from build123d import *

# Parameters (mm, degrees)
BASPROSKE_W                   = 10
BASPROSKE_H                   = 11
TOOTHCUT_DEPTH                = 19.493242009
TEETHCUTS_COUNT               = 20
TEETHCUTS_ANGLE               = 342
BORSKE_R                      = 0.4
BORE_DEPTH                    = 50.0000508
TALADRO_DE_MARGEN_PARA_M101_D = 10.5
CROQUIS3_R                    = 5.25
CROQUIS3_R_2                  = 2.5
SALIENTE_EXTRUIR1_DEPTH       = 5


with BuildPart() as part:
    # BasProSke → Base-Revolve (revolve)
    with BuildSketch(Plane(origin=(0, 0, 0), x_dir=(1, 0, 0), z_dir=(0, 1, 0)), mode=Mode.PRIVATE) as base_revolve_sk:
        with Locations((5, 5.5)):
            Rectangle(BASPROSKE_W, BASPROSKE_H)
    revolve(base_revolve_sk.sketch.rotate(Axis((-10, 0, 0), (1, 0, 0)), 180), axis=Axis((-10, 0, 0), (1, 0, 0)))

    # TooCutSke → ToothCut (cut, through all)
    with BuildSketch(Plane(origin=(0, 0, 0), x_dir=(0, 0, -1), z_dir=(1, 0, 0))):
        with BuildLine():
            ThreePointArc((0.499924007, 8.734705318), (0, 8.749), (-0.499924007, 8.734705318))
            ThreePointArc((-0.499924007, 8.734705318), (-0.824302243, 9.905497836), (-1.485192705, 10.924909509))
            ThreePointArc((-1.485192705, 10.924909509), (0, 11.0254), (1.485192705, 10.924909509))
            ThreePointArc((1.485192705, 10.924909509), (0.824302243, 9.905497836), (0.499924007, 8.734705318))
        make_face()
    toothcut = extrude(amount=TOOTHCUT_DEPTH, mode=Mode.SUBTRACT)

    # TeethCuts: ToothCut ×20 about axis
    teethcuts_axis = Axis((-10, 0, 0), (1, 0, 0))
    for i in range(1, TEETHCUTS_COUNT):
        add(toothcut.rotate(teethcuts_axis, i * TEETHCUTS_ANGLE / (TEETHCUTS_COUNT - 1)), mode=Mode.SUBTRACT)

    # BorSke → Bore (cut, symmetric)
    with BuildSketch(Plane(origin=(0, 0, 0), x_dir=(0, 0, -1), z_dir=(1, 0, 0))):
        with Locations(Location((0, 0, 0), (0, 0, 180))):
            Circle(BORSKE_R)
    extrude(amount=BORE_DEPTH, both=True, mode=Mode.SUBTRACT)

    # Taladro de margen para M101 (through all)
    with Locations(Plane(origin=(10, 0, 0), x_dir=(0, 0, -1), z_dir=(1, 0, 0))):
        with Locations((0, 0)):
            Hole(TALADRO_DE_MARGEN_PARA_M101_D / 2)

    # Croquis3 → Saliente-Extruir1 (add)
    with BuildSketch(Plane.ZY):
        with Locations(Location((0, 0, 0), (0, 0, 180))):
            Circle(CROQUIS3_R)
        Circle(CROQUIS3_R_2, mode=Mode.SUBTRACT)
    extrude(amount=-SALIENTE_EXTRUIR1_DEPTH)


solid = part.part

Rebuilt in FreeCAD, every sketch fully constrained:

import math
import FreeCAD as App
import Part
import Sketcher
from FreeCAD import Vector
Q = App.Units.Quantity


def add_polygon(sketch, points):
    """Adds a closed chain of lines whose ends are joined by coincident constraints."""
    first, n = sketch.GeometryCount, len(points)
    for a, b in zip(points, points[1:] + points[:1]):
        sketch.addGeometry(Part.LineSegment(App.Vector(*a, 0), App.Vector(*b, 0)), False)
    for i in range(n):
        sketch.addConstraint(Sketcher.Constraint("Coincident", first + i, 2, first + (i + 1) % n, 1))

doc = App.newDocument("Part")
body = doc.addObject("PartDesign::Body", "Body")

# Sketch on XZ plane
sketch1 = doc.addObject("Sketcher::SketchObject", "Sketch")
body.addObject(sketch1)
sketch1.AttachmentSupport = (doc.XZ_Plane, [""])
sketch1.MapMode = "FlatFace"
add_polygon(sketch1, [(0, -11), (0, 0), (10, 0), (10, -11)])  # lines 0-3
sketch1.addConstraint([
    Sketcher.Constraint("Vertical", 0),
    Sketcher.Constraint("Horizontal", 1),
    Sketcher.Constraint("Vertical", 2),
    Sketcher.Constraint("Horizontal", 3),
    Sketcher.Constraint("Coincident", 0, 2, -1, 1),
    Sketcher.Constraint("DistanceX", 1, 1, 1, 2, Q("10 mm")),
    Sketcher.Constraint("DistanceY", 0, 1, 0, 2, Q("11 mm")),
])
revolution = doc.addObject("PartDesign::Revolution", "Revolution")
body.addObject(revolution)
revolution.Profile = sketch1
revolution.ReferenceAxis = (sketch1, ["H_Axis"])
revolution.Angle = 360

# Sketch on YZ plane
sketch2 = doc.addObject("Sketcher::SketchObject", "Sketch001")
body.addObject(sketch2)
sketch2.AttachmentSupport = (doc.YZ_Plane, [""])
sketch2.MapMode = "FlatFace"
sketch2.addGeometry([
    Part.ArcOfCircle(Part.Circle(Vector(0, 0, 0), Vector(0, 0, 1), 8.7), math.radians(-3.28), math.radians(3.28)),
    Part.ArcOfCircle(Part.Circle(Vector(8.3, -4.5, 0), Vector(0, 0, 1), 4), math.radians(48), math.radians(83)),
    Part.ArcOfCircle(Part.Circle(Vector(0, 0, 0), Vector(0, 0, 1), 11), math.radians(-7.74), math.radians(7.74)),
    Part.ArcOfCircle(Part.Circle(Vector(8.3, 4.5, 0), Vector(0, 0, 1), 4), math.radians(-83), math.radians(-48)),
], False)
sketch2.addConstraint([
    Sketcher.Constraint("Coincident", 0, 1, 1, 2),
    Sketcher.Constraint("Coincident", 1, 1, 2, 1),
    Sketcher.Constraint("Coincident", 2, 2, 3, 2),
    Sketcher.Constraint("Coincident", 3, 1, 0, 2),
    Sketcher.Constraint("Coincident", 0, 3, -1, 1),
    Sketcher.Constraint("Coincident", 2, 3, -1, 1),
    Sketcher.Constraint("Equal", 1, 3),
    Sketcher.Constraint("Symmetric", 1, 3, 3, 3, -1),
    Sketcher.Constraint("Radius", 1, Q("4 mm")),
    Sketcher.Constraint("Radius", 0, Q("8.749 mm")),
    Sketcher.Constraint("Radius", 2, Q("11.0254 mm")),
    Sketcher.Constraint("DistanceY", 1, 3, -1, 1, Q("4.47219 mm")),
    Sketcher.Constraint("DistanceX", -1, 1, 1, 1, Q("10.92491 mm")),
])
pocket1 = doc.addObject("PartDesign::Pocket", "Pocket")
body.addObject(pocket1)
pocket1.Profile = sketch2
pocket1.Type = "ThroughAll"
pocket1.Reversed = True
doc.recompute()

polarpattern = doc.addObject("PartDesign::PolarPattern", "PolarPattern")
body.addObject(polarpattern)
polarpattern.Originals = [pocket1]
polarpattern.Axis = (doc.X_Axis, [""])
polarpattern.Angle = 360
polarpattern.Occurrences = 20
body.Tip = polarpattern

# Sketch on YZ plane
sketch3 = doc.addObject("Sketcher::SketchObject", "Sketch002")
body.addObject(sketch3)
sketch3.AttachmentSupport = (doc.YZ_Plane, [""])
sketch3.MapMode = "FlatFace"
sketch3.addGeometry(Part.Circle(Vector(0, 0, 0), Vector(0, 0, 1), 0.4), False)
sketch3.addConstraint([
    Sketcher.Constraint("Coincident", 0, 3, -1, 1),
    Sketcher.Constraint("Diameter", 0, Q("0.8 mm")),
])
pocket2 = doc.addObject("PartDesign::Pocket", "Pocket001")
body.addObject(pocket2)
pocket2.Profile = sketch3
pocket2.Length = 100.000102
pocket2.Midplane = True

# Sketch on YZ plane
sketch4 = doc.addObject("Sketcher::SketchObject", "Sketch003")
body.addObject(sketch4)
sketch4.AttachmentSupport = (doc.YZ_Plane, [""])
sketch4.MapMode = "FlatFace"
sketch4.AttachmentOffset = App.Placement(Vector(0, 0, 10), App.Rotation())
sketch4.addGeometry(Part.Circle(Vector(0, 0, 0), Vector(0, 0, 1), 5), False)
sketch4.addConstraint([
    Sketcher.Constraint("Coincident", 0, 3, -1, 1),
    Sketcher.Constraint("Diameter", 0, Q("10.5 mm")),
])
doc.recompute()
hole = doc.addObject("PartDesign::Hole", "Hole")
body.addObject(hole)
hole.Profile = sketch4
hole.ThreadType = "None"
hole.Diameter = 10.5
hole.DepthType = "ThroughAll"

# Sketch on YZ plane
sketch5 = doc.addObject("Sketcher::SketchObject", "Sketch004")
body.addObject(sketch5)
sketch5.AttachmentSupport = (doc.YZ_Plane, [""])
sketch5.MapMode = "FlatFace"
sketch5.addGeometry([
    Part.Circle(Vector(0, 0, 0), Vector(0, 0, 1), 5.2),
    Part.Circle(Vector(0, 0, 0), Vector(0, 0, 1), 2.5),
], False)
sketch5.addConstraint([
    Sketcher.Constraint("Coincident", 0, 3, -1, 1),
    Sketcher.Constraint("Coincident", 1, 3, -1, 1),
    Sketcher.Constraint("Diameter", 1, Q("5 mm")),
    Sketcher.Constraint("Diameter", 0, Q("10.5 mm")),
])
pad1 = doc.addObject("PartDesign::Pad", "Pad")
body.addObject(pad1)
pad1.Profile = sketch5
pad1.Length = 5

doc.recompute()
